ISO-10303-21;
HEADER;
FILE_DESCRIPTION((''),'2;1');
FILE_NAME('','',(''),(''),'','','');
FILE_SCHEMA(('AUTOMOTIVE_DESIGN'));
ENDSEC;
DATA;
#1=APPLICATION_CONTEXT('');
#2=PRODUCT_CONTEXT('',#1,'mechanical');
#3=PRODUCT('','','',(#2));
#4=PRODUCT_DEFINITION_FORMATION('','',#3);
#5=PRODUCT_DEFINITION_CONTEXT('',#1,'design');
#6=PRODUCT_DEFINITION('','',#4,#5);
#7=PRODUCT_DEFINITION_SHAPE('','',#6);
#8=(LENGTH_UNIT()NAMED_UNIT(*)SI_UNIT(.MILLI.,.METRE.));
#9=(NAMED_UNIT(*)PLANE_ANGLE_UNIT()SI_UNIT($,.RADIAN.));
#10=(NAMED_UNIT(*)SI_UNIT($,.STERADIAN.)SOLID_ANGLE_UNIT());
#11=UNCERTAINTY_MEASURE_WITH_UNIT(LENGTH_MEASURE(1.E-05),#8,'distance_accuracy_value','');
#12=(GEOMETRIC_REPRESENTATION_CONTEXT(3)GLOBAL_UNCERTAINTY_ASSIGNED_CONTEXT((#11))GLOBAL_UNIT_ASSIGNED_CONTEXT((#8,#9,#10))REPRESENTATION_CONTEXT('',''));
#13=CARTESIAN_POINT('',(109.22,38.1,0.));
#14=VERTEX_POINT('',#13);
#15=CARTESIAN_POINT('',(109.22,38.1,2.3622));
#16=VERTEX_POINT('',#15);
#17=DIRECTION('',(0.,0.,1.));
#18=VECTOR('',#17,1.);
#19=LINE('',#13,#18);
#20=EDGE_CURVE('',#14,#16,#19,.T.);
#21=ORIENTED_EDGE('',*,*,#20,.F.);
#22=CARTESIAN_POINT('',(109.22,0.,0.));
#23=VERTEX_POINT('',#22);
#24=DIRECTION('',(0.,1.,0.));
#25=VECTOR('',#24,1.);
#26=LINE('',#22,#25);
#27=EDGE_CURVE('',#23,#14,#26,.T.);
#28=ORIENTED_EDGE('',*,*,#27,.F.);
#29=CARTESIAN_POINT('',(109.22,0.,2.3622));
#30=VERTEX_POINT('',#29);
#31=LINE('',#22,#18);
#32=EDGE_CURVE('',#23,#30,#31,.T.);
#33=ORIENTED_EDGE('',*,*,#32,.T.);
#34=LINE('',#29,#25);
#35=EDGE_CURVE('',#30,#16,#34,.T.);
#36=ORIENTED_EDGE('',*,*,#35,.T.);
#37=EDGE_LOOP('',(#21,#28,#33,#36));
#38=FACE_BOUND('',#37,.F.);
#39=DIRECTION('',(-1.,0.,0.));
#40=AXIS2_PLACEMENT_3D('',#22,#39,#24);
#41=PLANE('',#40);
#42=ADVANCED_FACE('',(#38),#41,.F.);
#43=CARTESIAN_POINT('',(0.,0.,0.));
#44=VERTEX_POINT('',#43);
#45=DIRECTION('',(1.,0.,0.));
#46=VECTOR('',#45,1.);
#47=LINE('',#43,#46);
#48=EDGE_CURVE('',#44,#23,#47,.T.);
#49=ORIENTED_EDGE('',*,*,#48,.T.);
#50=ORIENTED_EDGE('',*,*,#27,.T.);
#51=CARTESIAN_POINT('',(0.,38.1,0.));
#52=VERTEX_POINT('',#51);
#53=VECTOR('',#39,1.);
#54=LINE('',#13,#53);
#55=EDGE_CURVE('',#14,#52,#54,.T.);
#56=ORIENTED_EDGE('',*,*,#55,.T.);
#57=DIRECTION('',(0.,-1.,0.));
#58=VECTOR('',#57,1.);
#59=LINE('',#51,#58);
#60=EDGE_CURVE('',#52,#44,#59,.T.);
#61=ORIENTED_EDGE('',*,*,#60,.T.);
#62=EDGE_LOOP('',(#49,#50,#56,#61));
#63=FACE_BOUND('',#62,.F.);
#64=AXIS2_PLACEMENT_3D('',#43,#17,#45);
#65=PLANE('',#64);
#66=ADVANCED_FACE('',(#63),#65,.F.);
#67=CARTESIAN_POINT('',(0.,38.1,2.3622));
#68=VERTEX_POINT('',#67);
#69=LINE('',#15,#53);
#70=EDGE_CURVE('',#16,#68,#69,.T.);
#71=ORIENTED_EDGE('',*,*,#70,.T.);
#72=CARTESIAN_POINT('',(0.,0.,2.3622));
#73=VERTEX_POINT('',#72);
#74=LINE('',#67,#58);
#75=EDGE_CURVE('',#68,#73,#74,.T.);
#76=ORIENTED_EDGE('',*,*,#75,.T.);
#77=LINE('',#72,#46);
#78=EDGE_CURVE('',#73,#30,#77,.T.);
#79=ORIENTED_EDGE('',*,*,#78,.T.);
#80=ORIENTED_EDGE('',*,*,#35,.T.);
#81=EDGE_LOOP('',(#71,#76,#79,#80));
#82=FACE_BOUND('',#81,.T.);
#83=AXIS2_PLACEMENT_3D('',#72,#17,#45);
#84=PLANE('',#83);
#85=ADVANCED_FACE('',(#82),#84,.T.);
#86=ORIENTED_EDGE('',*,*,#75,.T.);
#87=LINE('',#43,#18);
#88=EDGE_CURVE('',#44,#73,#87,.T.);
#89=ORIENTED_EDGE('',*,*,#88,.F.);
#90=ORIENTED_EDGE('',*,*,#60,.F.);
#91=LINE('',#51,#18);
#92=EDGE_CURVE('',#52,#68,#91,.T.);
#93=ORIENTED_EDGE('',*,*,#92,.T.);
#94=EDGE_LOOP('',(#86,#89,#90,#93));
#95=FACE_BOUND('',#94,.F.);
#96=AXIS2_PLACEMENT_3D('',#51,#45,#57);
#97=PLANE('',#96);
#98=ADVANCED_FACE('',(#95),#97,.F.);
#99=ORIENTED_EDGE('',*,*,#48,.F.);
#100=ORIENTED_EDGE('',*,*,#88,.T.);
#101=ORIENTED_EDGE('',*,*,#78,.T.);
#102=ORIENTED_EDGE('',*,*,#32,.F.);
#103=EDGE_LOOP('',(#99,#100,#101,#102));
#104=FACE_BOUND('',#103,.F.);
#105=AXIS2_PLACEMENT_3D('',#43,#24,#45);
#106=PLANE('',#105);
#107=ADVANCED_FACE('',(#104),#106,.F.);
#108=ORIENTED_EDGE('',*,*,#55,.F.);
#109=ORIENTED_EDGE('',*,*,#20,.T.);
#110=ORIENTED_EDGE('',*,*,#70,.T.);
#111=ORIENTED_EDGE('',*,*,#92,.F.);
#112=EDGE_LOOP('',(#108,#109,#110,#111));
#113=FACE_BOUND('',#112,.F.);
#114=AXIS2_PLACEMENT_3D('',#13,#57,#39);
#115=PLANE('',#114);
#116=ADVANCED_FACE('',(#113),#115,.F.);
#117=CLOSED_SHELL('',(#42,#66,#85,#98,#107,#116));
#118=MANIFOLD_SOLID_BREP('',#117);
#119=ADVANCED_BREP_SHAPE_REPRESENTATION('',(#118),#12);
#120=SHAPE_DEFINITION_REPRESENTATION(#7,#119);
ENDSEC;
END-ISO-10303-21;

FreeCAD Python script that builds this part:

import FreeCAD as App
import Part
import Sketcher
from FreeCAD import Vector
Q = App.Units.Quantity


def add_polygon(sketch, points):
    """Adds a closed chain of lines whose ends are joined by coincident constraints."""
    first, n = sketch.GeometryCount, len(points)
    for a, b in zip(points, points[1:] + points[:1]):
        sketch.addGeometry(Part.LineSegment(App.Vector(*a, 0), App.Vector(*b, 0)), False)
    for i in range(n):
        sketch.addConstraint(Sketcher.Constraint("Coincident", first + i, 2, first + (i + 1) % n, 1))

doc = App.newDocument("Part")
body = doc.addObject("PartDesign::Body", "Body")

sketch1 = body.newObject("Sketcher::SketchObject", "Sketch")
sketch1.AttachmentSupport = (doc.getObject("XY_Plane"), [""])
sketch1.MapMode = "FlatFace"
add_polygon(sketch1, [(0, 38), (0, 0), (109, 0), (109, 38)])
sketch1.addConstraint(Sketcher.Constraint("Vertical", 0))
sketch1.addConstraint(Sketcher.Constraint("Horizontal", 1))
sketch1.addConstraint(Sketcher.Constraint("Vertical", 2))
sketch1.addConstraint(Sketcher.Constraint("Horizontal", 3))
sketch1.addConstraint(Sketcher.Constraint("Coincident", 0, 2, -1, 1))
sketch1.addConstraint(Sketcher.Constraint("DistanceX", 1, 1, 1, 2, Q("4.3 in")))
sketch1.addConstraint(Sketcher.Constraint("DistanceY", 0, 2, 0, 1, Q("1.5 in")))
pad1 = body.newObject("PartDesign::Pad", "Pad")
pad1.Profile = sketch1
pad1.Length = Q("0.093 in")

doc.recompute()
